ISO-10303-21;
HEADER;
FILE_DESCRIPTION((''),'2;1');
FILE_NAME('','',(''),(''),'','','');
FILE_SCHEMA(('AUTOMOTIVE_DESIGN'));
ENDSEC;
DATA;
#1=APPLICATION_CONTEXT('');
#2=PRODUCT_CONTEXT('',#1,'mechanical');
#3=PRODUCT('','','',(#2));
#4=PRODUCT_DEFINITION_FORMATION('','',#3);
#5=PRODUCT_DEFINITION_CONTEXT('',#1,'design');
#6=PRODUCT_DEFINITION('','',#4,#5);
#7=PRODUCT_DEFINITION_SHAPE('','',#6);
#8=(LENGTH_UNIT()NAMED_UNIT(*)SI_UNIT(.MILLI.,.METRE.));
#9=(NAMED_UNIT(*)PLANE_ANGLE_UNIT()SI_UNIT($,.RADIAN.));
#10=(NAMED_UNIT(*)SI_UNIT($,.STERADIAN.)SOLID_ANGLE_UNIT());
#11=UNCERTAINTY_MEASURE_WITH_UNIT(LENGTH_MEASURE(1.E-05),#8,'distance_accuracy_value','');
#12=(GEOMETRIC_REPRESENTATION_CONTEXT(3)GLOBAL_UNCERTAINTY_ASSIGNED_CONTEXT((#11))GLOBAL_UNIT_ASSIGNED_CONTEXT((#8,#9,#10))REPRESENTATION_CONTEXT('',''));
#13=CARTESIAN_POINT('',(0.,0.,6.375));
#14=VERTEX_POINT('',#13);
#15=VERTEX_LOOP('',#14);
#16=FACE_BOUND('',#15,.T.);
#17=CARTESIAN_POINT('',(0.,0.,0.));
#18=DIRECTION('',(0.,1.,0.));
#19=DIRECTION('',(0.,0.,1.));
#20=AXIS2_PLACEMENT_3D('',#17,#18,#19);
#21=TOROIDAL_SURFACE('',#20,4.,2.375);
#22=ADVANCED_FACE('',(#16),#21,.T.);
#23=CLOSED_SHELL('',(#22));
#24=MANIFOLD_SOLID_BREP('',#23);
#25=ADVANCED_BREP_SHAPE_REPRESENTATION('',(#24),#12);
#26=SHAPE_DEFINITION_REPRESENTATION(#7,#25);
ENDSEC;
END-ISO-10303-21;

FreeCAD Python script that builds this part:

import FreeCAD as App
import Part
import Sketcher
from FreeCAD import Vector
Q = App.Units.Quantity

doc = App.newDocument("Part")
body = doc.addObject("PartDesign::Body", "Body")

sketch1 = body.newObject("Sketcher::SketchObject", "Sketch")
sketch1.AttachmentSupport = (doc.getObject("XY_Plane"), [""])
sketch1.MapMode = "FlatFace"
sketch1.addGeometry(Part.Circle(Vector(-4, 0, 0), Vector(0, 0, 1), 2.4), False)
sketch1.addConstraint([
    Sketcher.Constraint("PointOnObject", 0, 3, -1),
    Sketcher.Constraint("Diameter", 0, Q("4.75 mm")),
    Sketcher.Constraint("DistanceX", 0, 3, -1, 1, Q("4 mm")),
])
revolution = body.newObject("PartDesign::Revolution", "Revolution")
revolution.Profile = sketch1
revolution.ReferenceAxis = (sketch1, ["V_Axis"])
revolution.Angle = 360

doc.recompute()
